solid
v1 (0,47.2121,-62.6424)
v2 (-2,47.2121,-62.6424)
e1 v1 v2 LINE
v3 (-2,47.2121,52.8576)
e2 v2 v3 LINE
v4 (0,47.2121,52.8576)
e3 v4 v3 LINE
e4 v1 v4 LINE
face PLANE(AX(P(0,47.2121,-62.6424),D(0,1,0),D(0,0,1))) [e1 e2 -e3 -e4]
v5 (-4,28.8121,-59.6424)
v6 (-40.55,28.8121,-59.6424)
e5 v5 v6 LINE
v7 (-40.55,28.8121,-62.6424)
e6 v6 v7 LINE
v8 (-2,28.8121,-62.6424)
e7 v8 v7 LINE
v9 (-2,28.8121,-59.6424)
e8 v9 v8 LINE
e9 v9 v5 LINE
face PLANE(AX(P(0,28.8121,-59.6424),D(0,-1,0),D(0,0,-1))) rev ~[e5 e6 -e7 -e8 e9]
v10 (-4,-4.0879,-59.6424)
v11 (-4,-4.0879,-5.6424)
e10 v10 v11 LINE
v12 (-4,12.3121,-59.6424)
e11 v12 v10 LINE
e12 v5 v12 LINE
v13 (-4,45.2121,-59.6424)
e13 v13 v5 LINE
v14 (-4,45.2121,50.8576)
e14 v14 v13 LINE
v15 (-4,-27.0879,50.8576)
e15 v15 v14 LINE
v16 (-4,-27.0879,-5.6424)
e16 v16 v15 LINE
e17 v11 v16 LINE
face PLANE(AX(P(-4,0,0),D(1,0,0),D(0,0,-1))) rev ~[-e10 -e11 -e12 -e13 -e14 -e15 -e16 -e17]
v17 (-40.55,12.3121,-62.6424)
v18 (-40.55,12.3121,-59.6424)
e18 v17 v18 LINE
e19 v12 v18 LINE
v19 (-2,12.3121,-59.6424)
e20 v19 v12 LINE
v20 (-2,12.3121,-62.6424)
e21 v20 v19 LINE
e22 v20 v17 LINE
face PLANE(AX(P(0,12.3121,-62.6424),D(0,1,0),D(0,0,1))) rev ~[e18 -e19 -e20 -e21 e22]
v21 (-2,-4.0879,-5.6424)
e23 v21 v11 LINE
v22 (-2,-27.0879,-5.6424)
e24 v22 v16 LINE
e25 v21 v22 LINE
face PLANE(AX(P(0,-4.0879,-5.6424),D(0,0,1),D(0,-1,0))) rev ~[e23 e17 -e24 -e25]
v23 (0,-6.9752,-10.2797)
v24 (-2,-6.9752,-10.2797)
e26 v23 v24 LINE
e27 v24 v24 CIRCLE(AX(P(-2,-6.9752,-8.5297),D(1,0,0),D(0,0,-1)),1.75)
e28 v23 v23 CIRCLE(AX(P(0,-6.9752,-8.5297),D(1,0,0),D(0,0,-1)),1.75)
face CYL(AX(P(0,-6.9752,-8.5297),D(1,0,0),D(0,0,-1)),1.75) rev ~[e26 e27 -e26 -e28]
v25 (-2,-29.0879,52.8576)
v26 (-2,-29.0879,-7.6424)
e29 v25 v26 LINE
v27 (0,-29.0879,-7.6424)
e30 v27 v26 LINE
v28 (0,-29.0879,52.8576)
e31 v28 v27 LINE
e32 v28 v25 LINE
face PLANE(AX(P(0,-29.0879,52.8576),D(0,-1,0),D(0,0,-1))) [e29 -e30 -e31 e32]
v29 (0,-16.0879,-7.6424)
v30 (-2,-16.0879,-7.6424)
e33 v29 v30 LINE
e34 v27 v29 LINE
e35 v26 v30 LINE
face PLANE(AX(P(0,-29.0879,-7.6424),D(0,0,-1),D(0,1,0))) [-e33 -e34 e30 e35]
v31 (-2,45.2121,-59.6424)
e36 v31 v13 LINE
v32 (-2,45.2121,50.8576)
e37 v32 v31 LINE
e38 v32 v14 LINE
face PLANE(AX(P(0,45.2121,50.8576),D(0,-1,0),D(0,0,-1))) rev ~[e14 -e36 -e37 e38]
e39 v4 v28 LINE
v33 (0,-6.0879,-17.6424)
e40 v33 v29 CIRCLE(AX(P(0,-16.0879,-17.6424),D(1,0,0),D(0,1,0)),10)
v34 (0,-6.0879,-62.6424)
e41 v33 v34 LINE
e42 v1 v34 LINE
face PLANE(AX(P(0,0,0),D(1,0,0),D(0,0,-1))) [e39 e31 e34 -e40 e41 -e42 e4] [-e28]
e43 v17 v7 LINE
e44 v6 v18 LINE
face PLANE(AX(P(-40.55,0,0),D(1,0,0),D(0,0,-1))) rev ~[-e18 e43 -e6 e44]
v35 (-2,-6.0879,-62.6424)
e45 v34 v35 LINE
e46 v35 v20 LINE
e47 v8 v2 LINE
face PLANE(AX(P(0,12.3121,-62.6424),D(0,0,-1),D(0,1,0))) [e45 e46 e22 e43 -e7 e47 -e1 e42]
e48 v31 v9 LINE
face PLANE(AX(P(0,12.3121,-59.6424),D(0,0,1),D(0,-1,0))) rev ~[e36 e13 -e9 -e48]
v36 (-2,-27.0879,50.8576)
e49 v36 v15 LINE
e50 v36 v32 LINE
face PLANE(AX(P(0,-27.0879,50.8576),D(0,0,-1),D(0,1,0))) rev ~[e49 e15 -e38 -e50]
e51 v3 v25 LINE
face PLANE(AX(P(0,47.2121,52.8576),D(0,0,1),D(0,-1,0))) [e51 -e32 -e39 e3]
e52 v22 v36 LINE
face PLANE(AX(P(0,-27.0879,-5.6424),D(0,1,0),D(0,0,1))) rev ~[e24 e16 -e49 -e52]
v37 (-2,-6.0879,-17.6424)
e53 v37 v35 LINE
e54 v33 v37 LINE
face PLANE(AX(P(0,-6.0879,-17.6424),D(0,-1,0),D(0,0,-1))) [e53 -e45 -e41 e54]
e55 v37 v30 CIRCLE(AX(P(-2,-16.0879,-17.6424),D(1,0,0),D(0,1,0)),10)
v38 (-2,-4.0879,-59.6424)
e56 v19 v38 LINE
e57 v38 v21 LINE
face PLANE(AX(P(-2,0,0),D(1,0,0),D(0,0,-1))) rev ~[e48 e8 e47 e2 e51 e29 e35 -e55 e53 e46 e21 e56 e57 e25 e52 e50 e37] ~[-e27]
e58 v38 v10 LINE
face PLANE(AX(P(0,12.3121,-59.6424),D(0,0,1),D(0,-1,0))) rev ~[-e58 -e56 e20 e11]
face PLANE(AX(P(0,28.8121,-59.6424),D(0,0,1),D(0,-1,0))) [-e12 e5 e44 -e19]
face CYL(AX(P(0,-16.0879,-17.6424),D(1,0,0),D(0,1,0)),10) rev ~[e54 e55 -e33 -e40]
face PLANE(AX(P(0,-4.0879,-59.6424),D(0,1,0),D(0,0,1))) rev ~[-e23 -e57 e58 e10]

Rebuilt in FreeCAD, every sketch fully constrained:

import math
import FreeCAD as App
import Part
import Sketcher
from FreeCAD import Vector

doc = App.newDocument("Part")
body = doc.addObject("PartDesign::Body", "Body")

sketch1 = body.newObject("Sketcher::SketchObject", "Sketch")
sketch1.AttachmentSupport = (doc.getObject("YZ_Plane"), [""])
sketch1.MapMode = "FlatFace"
sketch1.addGeometry([
    Part.LineSegment(Vector(45.2121, 50.8576, 0), Vector(-27.0879, 50.8576, 0)),
    Part.LineSegment(Vector(-27.0879, 50.8576, 0), Vector(-27.0879, -5.6424, 0)),
    Part.LineSegment(Vector(-27.0879, -5.6424, 0), Vector(-4.0879, -5.6424, 0)),
    Part.LineSegment(Vector(-4.0879, -5.6424, 0), Vector(-4.0879, -59.6424, 0)),
    Part.LineSegment(Vector(-4.0879, -59.6424, 0), Vector(45.2121, -59.6424, 0)),
    Part.LineSegment(Vector(45.2121, -59.6424, 0), Vector(45.2121, 50.8576, 0)),
], False)
sketch1.addConstraint([
    Sketcher.Constraint("Coincident", 0, 2, 1, 1),
    Sketcher.Constraint("Coincident", 1, 2, 2, 1),
    Sketcher.Constraint("Coincident", 2, 2, 3, 1),
    Sketcher.Constraint("Coincident", 3, 2, 4, 1),
    Sketcher.Constraint("Coincident", 4, 2, 5, 1),
    Sketcher.Constraint("Coincident", 5, 2, 0, 1),
    Sketcher.Constraint("Horizontal", 0),
    Sketcher.Constraint("Vertical", 1),
    Sketcher.Constraint("Horizontal", 2),
    Sketcher.Constraint("Vertical", 3),
    Sketcher.Constraint("Horizontal", 4),
    Sketcher.Constraint("Vertical", 5),
    Sketcher.Constraint("DistanceX", 2, 1, 2, 2, 23.0),
    Sketcher.Constraint("DistanceY", 3, 2, 3, 1, 54.0),
    Sketcher.Constraint("DistanceX", 0, 2, 0, 1, 72.3),
    Sketcher.Constraint("DistanceY", 1, 2, 1, 1, 56.5),
    Sketcher.Constraint("DistanceX", 0, 2, -1, 1, 27.088),
    Sketcher.Constraint("DistanceY", -1, 1, 0, 2, 50.8576),
])
pad1 = body.newObject("PartDesign::Pad", "Pad")
pad1.Profile = sketch1
pad1.Length = 4
pad1.Reversed = True

sketch2 = body.newObject("Sketcher::SketchObject", "Sketch001")
sketch2.AttachmentSupport = (doc.getObject("YZ_Plane"), [""])
sketch2.MapMode = "FlatFace"
sketch2.addGeometry([
    Part.LineSegment(Vector(-27.0879, -5.6424, 0), Vector(-27.0879, 50.8576, 0)),
    Part.LineSegment(Vector(-27.0879, 50.8576, 0), Vector(45.2121, 50.8576, 0)),
    Part.LineSegment(Vector(45.2121, 50.8576, 0), Vector(45.2121, -59.6424, 0)),
    Part.LineSegment(Vector(45.2121, -59.6424, 0), Vector(28.8121, -59.6424, 0)),
    Part.LineSegment(Vector(28.8121, -59.6424, 0), Vector(28.8121, -62.6424, 0)),
    Part.LineSegment(Vector(28.8121, -62.6424, 0), Vector(47.2121, -62.6424, 0)),
    Part.LineSegment(Vector(47.2121, -62.6424, 0), Vector(47.2121, 52.8576, 0)),
    Part.LineSegment(Vector(47.2121, 52.8576, 0), Vector(-29.0879, 52.8576, 0)),
    Part.LineSegment(Vector(-29.0879, 52.8576, 0), Vector(-29.0879, -7.6424, 0)),
    Part.LineSegment(Vector(-29.0879, -7.6424, 0), Vector(-16.0879, -7.6424, 0)),
    Part.ArcOfCircle(Part.Circle(Vector(-16.0879, -17.6424, 0), Vector(0, 0, 1), 10), math.radians(0), math.radians(90)),
    Part.LineSegment(Vector(-6.0879, -17.6424, 0), Vector(-6.0879, -62.6424, 0)),
    Part.LineSegment(Vector(-6.0879, -62.6424, 0), Vector(12.3121, -62.6424, 0)),
    Part.LineSegment(Vector(12.3121, -62.6424, 0), Vector(12.3121, -59.6424, 0)),
    Part.LineSegment(Vector(12.3121, -59.6424, 0), Vector(-4.0879, -59.6424, 0)),
    Part.LineSegment(Vector(-4.0879, -59.6424, 0), Vector(-4.0879, -5.6424, 0)),
    Part.LineSegment(Vector(-4.0879, -5.6424, 0), Vector(-27.0879, -5.6424, 0)),
], False)
sketch2.addConstraint([
    Sketcher.Constraint("Coincident", 0, 2, 1, 1),
    Sketcher.Constraint("Coincident", 1, 2, 2, 1),
    Sketcher.Constraint("Coincident", 2, 2, 3, 1),
    Sketcher.Constraint("Coincident", 3, 2, 4, 1),
    Sketcher.Constraint("Coincident", 4, 2, 5, 1),
    Sketcher.Constraint("Coincident", 5, 2, 6, 1),
    Sketcher.Constraint("Coincident", 6, 2, 7, 1),
    Sketcher.Constraint("Coincident", 7, 2, 8, 1),
    Sketcher.Constraint("Coincident", 8, 2, 9, 1),
    Sketcher.Constraint("Tangent", 9, 2, 10, 2),
    Sketcher.Constraint("Tangent", 10, 1, 11, 1),
    Sketcher.Constraint("Coincident", 11, 2, 12, 1),
    Sketcher.Constraint("Coincident", 12, 2, 13, 1),
    Sketcher.Constraint("Coincident", 13, 2, 14, 1),
    Sketcher.Constraint("Coincident", 14, 2, 15, 1),
    Sketcher.Constraint("Coincident", 15, 2, 16, 1),
    Sketcher.Constraint("Coincident", 16, 2, 0, 1),
    Sketcher.Constraint("Vertical", 0),
    Sketcher.Constraint("Horizontal", 1),
    Sketcher.Constraint("Vertical", 2),
    Sketcher.Constraint("Horizontal", 3),
    Sketcher.Constraint("Vertical", 4),
    Sketcher.Constraint("Horizontal", 5),
    Sketcher.Constraint("Vertical", 6),
    Sketcher.Constraint("Horizontal", 7),
    Sketcher.Constraint("Vertical", 8),
    Sketcher.Constraint("Horizontal", 9),
    Sketcher.Constraint("Vertical", 11),
    Sketcher.Constraint("Horizontal", 12),
    Sketcher.Constraint("Vertical", 13),
    Sketcher.Constraint("Horizontal", 14),
    Sketcher.Constraint("Vertical", 15),
    Sketcher.Constraint("Horizontal", 16),
    Sketcher.Constraint("Horizontal", 5, 2, 11, 2),
    Sketcher.Constraint("Horizontal", 3, 2, 13, 2),
    Sketcher.Constraint("Equal", 5, 12),
    Sketcher.Constraint("Equal", 3, 14),
    Sketcher.Constraint("Radius", 10, 10.0),
    Sketcher.Constraint("DistanceX", 9, 1, 9, 2, 13.0),
    Sketcher.Constraint("DistanceX", 16, 2, 16, 1, 23.0),
    Sketcher.Constraint("DistanceY", 4, 2, 4, 1, 3.0),
    Sketcher.Constraint("DistanceY", 11, 2, 11, 1, 45.0),
    Sketcher.Constraint("DistanceY", 15, 1, 15, 2, 54.0),
    Sketcher.Constraint("DistanceX", 1, 1, 1, 2, 72.3),
    Sketcher.Constraint("DistanceX", 3, 2, 3, 1, 16.4),
    Sketcher.Constraint("DistanceX", 5, 1, 5, 2, 18.4),
    Sketcher.Constraint("DistanceY", 0, 1, 0, 2, 56.5),
    Sketcher.Constraint("DistanceY", 6, 1, 6, 2, 115.5),
    Sketcher.Constraint("DistanceX", 10, 3, -1, 1, 16.088),
    Sketcher.Constraint("DistanceY", 10, 3, -1, 1, 17.6424),
])
pad2 = body.newObject("PartDesign::Pad", "Pad001")
pad2.Profile = sketch2
pad2.Length = 2
pad2.Reversed = True

sketch3 = body.newObject("Sketcher::SketchObject", "Sketch002")
sketch3.AttachmentSupport = (doc.getObject("YZ_Plane"), [""])
sketch3.MapMode = "FlatFace"
sketch3.addGeometry([
    Part.LineSegment(Vector(28.8121, -62.6424, 0), Vector(28.8121, -59.6424, 0)),
    Part.LineSegment(Vector(28.8121, -59.6424, 0), Vector(12.3121, -59.6424, 0)),
    Part.LineSegment(Vector(12.3121, -59.6424, 0), Vector(12.3121, -62.6424, 0)),
    Part.LineSegment(Vector(12.3121, -62.6424, 0), Vector(28.8121, -62.6424, 0)),
], False)
sketch3.addConstraint([
    Sketcher.Constraint("Coincident", 0, 2, 1, 1),
    Sketcher.Constraint("Coincident", 1, 2, 2, 1),
    Sketcher.Constraint("Coincident", 2, 2, 3, 1),
    Sketcher.Constraint("Coincident", 3, 2, 0, 1),
    Sketcher.Constraint("Vertical", 0),
    Sketcher.Constraint("Horizontal", 1),
    Sketcher.Constraint("Vertical", 2),
    Sketcher.Constraint("Horizontal", 3),
    Sketcher.Constraint("DistanceY", 0, 1, 0, 2, 3.0),
    Sketcher.Constraint("DistanceX", 1, 2, 1, 1, 16.5),
    Sketcher.Constraint("DistanceX", -1, 1, 0, 2, 28.812),
    Sketcher.Constraint("DistanceY", 0, 2, -1, 1, 59.6424),
])
pad3 = body.newObject("PartDesign::Pad", "Pad002")
pad3.Profile = sketch3
pad3.Length = 40.55
pad3.Reversed = True

sketch4 = body.newObject("Sketcher::SketchObject", "Sketch003")
sketch4.AttachmentSupport = (doc.getObject("YZ_Plane"), [""])
sketch4.MapMode = "FlatFace"
sketch4.addGeometry(Part.Circle(Vector(-6.9752, -8.5297, 0), Vector(0, 0, 1), 1.75), False)
sketch4.addConstraint([
    Sketcher.Constraint("Diameter", 0, 3.5),
    Sketcher.Constraint("DistanceX", 0, 3, -1, 1, 6.9752),
    Sketcher.Constraint("DistanceY", 0, 3, -1, 1, 8.5297),
])
pocket1 = body.newObject("PartDesign::Pocket", "Pocket")
pocket1.Profile = sketch4
pocket1.Length = 2

doc.recompute()
